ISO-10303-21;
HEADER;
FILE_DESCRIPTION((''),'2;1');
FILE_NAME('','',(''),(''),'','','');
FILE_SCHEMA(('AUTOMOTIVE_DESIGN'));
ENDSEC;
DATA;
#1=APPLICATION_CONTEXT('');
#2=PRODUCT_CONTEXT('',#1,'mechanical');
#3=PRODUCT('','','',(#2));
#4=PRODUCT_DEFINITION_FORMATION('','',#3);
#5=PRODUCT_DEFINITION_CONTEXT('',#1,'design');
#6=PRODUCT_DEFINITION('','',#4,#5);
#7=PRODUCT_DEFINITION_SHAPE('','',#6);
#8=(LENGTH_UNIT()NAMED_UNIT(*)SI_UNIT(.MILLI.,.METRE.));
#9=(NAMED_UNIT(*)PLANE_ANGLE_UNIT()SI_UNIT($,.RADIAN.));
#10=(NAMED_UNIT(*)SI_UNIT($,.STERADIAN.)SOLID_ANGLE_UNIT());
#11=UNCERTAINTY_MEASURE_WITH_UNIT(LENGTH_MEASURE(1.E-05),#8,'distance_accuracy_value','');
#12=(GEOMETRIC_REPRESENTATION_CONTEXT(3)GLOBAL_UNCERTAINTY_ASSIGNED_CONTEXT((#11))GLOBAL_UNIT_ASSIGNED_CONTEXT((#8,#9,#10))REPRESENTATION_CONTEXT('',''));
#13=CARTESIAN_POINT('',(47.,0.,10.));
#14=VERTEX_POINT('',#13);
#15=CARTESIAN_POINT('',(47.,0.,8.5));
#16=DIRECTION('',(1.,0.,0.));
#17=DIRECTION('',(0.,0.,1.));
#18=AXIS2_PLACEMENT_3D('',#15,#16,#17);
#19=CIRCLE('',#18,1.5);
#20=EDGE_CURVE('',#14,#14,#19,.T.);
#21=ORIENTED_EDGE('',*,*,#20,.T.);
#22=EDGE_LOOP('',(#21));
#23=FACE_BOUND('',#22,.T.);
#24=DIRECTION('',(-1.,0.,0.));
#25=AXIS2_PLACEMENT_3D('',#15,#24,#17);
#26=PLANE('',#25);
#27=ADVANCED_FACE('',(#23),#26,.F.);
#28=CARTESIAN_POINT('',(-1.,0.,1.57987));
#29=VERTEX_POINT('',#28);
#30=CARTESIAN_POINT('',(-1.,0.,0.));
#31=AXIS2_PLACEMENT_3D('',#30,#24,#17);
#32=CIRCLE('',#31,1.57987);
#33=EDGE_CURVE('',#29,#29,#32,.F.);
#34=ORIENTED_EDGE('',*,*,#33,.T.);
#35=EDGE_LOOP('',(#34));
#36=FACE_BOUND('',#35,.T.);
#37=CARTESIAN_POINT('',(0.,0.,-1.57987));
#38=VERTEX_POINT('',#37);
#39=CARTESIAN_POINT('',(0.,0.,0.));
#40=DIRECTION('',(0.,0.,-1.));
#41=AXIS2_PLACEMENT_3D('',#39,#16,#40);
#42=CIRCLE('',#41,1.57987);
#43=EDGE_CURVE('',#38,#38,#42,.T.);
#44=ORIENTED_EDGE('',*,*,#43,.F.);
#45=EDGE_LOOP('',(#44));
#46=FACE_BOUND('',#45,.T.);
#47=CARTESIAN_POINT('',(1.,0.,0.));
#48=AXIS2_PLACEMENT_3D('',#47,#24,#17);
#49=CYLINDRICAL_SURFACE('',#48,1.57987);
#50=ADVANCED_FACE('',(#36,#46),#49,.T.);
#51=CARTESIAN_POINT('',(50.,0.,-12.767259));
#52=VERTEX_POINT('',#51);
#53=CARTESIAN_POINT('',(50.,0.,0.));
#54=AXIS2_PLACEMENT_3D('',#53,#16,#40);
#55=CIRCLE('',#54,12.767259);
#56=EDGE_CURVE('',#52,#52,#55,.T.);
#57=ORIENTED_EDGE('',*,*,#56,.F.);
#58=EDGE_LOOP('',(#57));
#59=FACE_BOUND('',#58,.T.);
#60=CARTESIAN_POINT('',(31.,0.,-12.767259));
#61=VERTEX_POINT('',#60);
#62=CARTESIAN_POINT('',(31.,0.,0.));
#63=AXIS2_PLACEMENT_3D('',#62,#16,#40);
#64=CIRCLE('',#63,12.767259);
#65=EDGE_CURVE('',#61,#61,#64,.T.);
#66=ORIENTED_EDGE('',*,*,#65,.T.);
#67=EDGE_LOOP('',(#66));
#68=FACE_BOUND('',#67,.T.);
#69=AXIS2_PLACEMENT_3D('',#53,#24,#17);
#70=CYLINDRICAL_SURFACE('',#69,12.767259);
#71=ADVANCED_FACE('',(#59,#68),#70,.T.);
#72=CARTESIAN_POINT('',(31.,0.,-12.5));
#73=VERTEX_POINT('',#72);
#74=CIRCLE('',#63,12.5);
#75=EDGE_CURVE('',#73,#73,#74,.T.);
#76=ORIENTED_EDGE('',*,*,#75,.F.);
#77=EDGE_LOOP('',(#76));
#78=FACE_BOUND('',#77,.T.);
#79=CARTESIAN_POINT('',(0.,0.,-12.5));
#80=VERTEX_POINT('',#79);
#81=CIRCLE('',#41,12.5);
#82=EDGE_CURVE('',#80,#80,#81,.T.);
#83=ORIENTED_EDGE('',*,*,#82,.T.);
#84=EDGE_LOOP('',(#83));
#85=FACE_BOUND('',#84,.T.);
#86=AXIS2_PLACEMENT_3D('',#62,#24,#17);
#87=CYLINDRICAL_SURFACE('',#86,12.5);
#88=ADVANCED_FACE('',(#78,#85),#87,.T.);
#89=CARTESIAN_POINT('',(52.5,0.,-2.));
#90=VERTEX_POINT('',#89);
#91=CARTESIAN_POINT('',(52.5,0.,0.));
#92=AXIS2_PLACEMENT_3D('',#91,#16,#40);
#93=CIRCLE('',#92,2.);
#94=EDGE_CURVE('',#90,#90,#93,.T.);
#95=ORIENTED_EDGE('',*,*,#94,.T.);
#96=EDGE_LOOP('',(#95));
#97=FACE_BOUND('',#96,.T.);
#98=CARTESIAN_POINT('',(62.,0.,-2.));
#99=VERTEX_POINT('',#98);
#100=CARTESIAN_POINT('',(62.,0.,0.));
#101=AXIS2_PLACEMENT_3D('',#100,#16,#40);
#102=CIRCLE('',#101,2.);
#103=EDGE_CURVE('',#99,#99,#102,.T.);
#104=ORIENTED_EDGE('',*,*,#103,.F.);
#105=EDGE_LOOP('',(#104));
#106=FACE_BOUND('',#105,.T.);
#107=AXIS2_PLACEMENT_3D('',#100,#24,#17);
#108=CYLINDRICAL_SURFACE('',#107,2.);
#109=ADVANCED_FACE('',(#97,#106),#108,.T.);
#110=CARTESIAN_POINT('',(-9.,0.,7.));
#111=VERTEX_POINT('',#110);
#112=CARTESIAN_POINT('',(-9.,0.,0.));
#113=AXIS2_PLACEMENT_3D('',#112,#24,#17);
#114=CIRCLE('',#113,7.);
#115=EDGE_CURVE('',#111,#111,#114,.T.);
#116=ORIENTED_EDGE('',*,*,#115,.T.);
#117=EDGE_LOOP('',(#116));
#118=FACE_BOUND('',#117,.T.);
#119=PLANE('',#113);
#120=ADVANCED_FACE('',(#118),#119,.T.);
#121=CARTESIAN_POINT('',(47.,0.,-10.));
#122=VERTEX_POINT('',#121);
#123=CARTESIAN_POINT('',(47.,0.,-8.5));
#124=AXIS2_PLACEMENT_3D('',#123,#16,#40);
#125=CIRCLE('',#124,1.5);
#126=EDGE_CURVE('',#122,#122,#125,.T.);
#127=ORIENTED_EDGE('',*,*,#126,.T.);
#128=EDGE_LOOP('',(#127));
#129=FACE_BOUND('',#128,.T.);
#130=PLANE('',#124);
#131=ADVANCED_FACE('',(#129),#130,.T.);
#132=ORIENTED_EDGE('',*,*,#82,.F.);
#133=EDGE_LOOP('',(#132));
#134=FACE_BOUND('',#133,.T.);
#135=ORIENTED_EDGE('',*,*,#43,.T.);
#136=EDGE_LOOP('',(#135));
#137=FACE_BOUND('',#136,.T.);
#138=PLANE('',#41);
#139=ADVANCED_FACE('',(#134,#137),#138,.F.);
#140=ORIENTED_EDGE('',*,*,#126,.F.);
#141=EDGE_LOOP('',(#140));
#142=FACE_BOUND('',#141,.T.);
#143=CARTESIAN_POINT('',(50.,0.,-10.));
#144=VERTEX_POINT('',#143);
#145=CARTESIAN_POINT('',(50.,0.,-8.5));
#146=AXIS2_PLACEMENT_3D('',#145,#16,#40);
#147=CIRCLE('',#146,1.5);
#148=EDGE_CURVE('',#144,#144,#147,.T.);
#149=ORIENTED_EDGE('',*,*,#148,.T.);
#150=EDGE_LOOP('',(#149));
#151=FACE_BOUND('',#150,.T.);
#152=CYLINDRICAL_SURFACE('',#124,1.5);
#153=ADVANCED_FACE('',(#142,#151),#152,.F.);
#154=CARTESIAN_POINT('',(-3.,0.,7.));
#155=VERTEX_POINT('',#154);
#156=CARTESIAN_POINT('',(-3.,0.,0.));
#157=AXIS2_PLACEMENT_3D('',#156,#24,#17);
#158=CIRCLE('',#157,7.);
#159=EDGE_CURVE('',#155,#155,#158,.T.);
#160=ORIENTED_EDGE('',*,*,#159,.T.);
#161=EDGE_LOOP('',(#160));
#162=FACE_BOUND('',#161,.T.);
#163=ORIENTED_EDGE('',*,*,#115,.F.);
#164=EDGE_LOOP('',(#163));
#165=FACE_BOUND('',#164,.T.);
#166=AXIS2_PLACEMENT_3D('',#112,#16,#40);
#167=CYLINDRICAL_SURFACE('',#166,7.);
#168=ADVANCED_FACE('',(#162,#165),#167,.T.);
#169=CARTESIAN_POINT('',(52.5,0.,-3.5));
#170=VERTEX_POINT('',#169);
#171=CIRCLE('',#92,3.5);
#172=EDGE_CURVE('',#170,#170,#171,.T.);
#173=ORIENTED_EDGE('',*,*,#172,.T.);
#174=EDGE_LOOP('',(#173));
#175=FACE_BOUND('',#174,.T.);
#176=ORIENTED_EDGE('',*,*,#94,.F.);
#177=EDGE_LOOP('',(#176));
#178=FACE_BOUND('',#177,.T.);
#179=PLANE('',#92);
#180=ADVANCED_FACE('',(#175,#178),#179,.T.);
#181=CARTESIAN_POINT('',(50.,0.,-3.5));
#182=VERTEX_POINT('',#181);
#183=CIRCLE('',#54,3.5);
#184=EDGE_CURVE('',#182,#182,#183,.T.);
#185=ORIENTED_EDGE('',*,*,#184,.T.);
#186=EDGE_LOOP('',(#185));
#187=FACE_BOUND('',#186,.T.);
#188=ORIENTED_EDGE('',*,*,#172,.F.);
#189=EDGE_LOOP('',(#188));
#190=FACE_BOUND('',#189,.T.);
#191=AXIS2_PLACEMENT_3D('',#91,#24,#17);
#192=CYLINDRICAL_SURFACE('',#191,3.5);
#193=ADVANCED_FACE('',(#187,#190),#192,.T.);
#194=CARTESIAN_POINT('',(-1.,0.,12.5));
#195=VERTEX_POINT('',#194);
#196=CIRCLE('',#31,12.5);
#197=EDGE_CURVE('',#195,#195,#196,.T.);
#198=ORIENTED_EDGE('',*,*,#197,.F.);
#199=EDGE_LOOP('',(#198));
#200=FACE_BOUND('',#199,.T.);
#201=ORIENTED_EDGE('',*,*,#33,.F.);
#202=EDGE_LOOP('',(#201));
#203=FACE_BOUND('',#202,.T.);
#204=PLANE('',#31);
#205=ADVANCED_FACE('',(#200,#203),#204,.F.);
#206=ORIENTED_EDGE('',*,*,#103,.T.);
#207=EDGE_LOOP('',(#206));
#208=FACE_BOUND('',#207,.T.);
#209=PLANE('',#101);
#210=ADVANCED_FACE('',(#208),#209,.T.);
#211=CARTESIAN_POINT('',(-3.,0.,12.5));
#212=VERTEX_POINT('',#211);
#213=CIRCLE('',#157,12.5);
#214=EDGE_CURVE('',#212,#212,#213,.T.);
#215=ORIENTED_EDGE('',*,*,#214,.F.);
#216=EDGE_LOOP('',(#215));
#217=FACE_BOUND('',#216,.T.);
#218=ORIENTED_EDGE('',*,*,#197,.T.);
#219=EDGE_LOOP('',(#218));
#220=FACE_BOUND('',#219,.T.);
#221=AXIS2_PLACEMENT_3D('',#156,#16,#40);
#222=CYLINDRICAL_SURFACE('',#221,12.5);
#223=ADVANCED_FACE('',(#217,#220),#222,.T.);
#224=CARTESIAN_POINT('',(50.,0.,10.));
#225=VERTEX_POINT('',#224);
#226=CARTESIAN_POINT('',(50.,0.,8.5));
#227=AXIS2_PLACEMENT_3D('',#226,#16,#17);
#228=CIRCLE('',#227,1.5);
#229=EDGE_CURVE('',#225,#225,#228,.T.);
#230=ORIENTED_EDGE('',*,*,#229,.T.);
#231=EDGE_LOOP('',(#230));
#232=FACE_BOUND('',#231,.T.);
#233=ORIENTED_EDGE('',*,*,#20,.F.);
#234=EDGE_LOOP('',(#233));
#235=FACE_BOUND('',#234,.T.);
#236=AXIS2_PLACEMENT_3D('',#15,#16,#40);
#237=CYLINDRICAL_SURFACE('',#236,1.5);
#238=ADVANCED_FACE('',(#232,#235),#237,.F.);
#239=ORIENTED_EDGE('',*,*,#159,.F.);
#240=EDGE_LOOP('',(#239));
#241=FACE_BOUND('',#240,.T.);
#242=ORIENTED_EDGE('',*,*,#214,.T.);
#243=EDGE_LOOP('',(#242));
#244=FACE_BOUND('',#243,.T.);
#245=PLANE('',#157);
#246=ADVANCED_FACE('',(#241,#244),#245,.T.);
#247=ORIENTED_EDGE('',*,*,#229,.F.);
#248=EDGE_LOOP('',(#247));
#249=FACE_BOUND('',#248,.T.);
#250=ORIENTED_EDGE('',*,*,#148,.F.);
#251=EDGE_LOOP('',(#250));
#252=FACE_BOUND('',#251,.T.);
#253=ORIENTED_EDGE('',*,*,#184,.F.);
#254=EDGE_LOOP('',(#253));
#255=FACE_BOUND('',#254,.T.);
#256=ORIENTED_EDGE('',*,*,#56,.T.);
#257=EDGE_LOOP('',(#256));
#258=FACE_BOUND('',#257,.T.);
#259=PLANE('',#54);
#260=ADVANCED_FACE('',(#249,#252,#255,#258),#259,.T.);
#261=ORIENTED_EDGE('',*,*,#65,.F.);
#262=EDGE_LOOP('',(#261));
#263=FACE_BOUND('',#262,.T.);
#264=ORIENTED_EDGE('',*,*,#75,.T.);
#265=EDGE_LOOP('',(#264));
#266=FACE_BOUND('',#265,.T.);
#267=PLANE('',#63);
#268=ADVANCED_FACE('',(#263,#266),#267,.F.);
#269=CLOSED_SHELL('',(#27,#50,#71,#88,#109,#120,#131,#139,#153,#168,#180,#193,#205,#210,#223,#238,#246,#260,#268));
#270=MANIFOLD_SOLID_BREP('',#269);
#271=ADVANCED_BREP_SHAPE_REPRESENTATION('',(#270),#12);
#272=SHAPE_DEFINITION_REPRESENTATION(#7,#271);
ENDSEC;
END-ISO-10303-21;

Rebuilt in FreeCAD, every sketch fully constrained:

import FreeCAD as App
import Part
import Sketcher

V = App.Vector
Q = App.Units.Quantity

doc = App.newDocument("Part")
body = doc.addObject("PartDesign::Body", "Body")

# Sketch on YZ plane
sketch1 = doc.addObject("Sketcher::SketchObject", "Sketch")
body.addObject(sketch1)
sketch1.AttachmentSupport = (doc.YZ_Plane, [""])
sketch1.MapMode = "FlatFace"
sketch1.addGeometry(Part.Circle(V(0, 0, 0), V(0, 0, 1), 12.5), False)
sketch1.addConstraint([
    Sketcher.Constraint("Coincident", 0, 3, -1, 1),
    Sketcher.Constraint("Diameter", 0, Q("25 mm")),
])
pad1 = doc.addObject("PartDesign::Pad", "Pad")
body.addObject(pad1)
pad1.Profile = sketch1
pad1.Length = 31

# Sketch on YZ plane
sketch2 = doc.addObject("Sketcher::SketchObject", "Sketch001")
body.addObject(sketch2)
sketch2.AttachmentSupport = (doc.YZ_Plane, [""])
sketch2.MapMode = "FlatFace"
sketch2.AttachmentOffset = App.Placement(V(0, 0, 31), App.Rotation())
sketch2.addGeometry(Part.Circle(V(0, 0, 0), V(0, 0, 1), 12.767259), False)
sketch2.addConstraint([
    Sketcher.Constraint("Coincident", 0, 3, -1, 1),
    Sketcher.Constraint("Diameter", 0, Q("25.534517 mm")),
])
pad2 = doc.addObject("PartDesign::Pad", "Pad001")
body.addObject(pad2)
pad2.Profile = sketch2
pad2.Length = 19

# Sketch on YZ plane
sketch3 = doc.addObject("Sketcher::SketchObject", "Sketch002")
body.addObject(sketch3)
sketch3.AttachmentSupport = (doc.YZ_Plane, [""])
sketch3.MapMode = "FlatFace"
sketch3.AttachmentOffset = App.Placement(V(0, 0, 50), App.Rotation())
sketch3.addGeometry(Part.Circle(V(0, 0, 0), V(0, 0, 1), 3.5), False)
sketch3.addConstraint([
    Sketcher.Constraint("Coincident", 0, 3, -1, 1),
    Sketcher.Constraint("Diameter", 0, Q("7 mm")),
])
pad3 = doc.addObject("PartDesign::Pad", "Pad002")
body.addObject(pad3)
pad3.Profile = sketch3
pad3.Length = 2.5

# Sketch on YZ plane
sketch4 = doc.addObject("Sketcher::SketchObject", "Sketch003")
body.addObject(sketch4)
sketch4.AttachmentSupport = (doc.YZ_Plane, [""])
sketch4.MapMode = "FlatFace"
sketch4.AttachmentOffset = App.Placement(V(0, 0, 52.5), App.Rotation())
sketch4.addGeometry(Part.Circle(V(0, 0, 0), V(0, 0, 1), 2), False)
sketch4.addConstraint([
    Sketcher.Constraint("Coincident", 0, 3, -1, 1),
    Sketcher.Constraint("Diameter", 0, Q("4 mm")),
])
pad4 = doc.addObject("PartDesign::Pad", "Pad003")
body.addObject(pad4)
pad4.Profile = sketch4
pad4.Length = 9.5
body2 = doc.addObject("PartDesign::Body", "Body001")

# Sketch on YZ plane
sketch5 = doc.addObject("Sketcher::SketchObject", "Sketch004")
body2.addObject(sketch5)
sketch5.AttachmentSupport = (doc.getObject("YZ_Plane001"), [""])
sketch5.MapMode = "FlatFace"
sketch5.AttachmentOffset = App.Placement(V(0, 0, -1), App.Rotation())
sketch5.addGeometry(Part.Circle(V(0, 0, 0), V(0, 0, 1), 12.5), False)
sketch5.addConstraint([
    Sketcher.Constraint("Coincident", 0, 3, -1, 1),
    Sketcher.Constraint("Diameter", 0, Q("25 mm")),
])
pad5 = doc.addObject("PartDesign::Pad", "Pad004")
body2.addObject(pad5)
pad5.Profile = sketch5
pad5.Length = 2
pad5.Reversed = True
body.AllowCompound = True
doc.recompute()

boolean = doc.addObject("PartDesign::Boolean", "Boolean")
body.addObject(boolean)
boolean.Type = "Fuse"
boolean.addObjects([body2])

# Sketch on YZ plane
sketch6 = doc.addObject("Sketcher::SketchObject", "Sketch005")
body.addObject(sketch6)
sketch6.AttachmentSupport = (doc.YZ_Plane, [""])
sketch6.MapMode = "FlatFace"
sketch6.AttachmentOffset = App.Placement(V(0, 0, -3), App.Rotation())
sketch6.addGeometry(Part.Circle(V(0, 0, 0), V(0, 0, 1), 1.57987), False)
sketch6.addConstraint([
    Sketcher.Constraint("Coincident", 0, 3, -1, 1),
    Sketcher.Constraint("Diameter", 0, Q("3.15974 mm")),
])
pad6 = doc.addObject("PartDesign::Pad", "Pad005")
body.addObject(pad6)
pad6.Profile = sketch6
pad6.Length = 4

# Sketch on YZ plane
sketch7 = doc.addObject("Sketcher::SketchObject", "Sketch006")
body.addObject(sketch7)
sketch7.AttachmentSupport = (doc.YZ_Plane, [""])
sketch7.MapMode = "FlatFace"
sketch7.AttachmentOffset = App.Placement(V(0, 0, -3), App.Rotation())
sketch7.addGeometry(Part.Circle(V(0, 0, 0), V(0, 0, 1), 7), False)
sketch7.addConstraint([
    Sketcher.Constraint("Coincident", 0, 3, -1, 1),
    Sketcher.Constraint("Diameter", 0, Q("14 mm")),
])
pad7 = doc.addObject("PartDesign::Pad", "Pad006")
body.addObject(pad7)
pad7.Profile = sketch7
pad7.Length = 6
pad7.Reversed = True

# Sketch on YZ plane
sketch8 = doc.addObject("Sketcher::SketchObject", "Sketch007")
body.addObject(sketch8)
sketch8.AttachmentSupport = (doc.YZ_Plane, [""])
sketch8.MapMode = "FlatFace"
sketch8.AttachmentOffset = App.Placement(V(0, 0, 50), App.Rotation())
sketch8.addGeometry([
    Part.Circle(V(0, -8.5, 0), V(0, 0, 1), 1.5),
    Part.Circle(V(0, 8.5, 0), V(0, 0, 1), 1.5),
], False)
sketch8.addConstraint([
    Sketcher.Constraint("Equal", 0, 1),
    Sketcher.Constraint("Symmetric", 0, 3, 1, 3, -1, 1),
    Sketcher.Constraint("PointOnObject", 0, 3, -2),
    Sketcher.Constraint("Diameter", 0, Q("3 mm")),
    Sketcher.Constraint("DistanceY", 0, 3, 1, 3, Q("17 mm")),
])
pocket1 = doc.addObject("PartDesign::Pocket", "Pocket")
body.addObject(pocket1)
pocket1.Profile = sketch8
pocket1.Length = 3

doc.recompute()
